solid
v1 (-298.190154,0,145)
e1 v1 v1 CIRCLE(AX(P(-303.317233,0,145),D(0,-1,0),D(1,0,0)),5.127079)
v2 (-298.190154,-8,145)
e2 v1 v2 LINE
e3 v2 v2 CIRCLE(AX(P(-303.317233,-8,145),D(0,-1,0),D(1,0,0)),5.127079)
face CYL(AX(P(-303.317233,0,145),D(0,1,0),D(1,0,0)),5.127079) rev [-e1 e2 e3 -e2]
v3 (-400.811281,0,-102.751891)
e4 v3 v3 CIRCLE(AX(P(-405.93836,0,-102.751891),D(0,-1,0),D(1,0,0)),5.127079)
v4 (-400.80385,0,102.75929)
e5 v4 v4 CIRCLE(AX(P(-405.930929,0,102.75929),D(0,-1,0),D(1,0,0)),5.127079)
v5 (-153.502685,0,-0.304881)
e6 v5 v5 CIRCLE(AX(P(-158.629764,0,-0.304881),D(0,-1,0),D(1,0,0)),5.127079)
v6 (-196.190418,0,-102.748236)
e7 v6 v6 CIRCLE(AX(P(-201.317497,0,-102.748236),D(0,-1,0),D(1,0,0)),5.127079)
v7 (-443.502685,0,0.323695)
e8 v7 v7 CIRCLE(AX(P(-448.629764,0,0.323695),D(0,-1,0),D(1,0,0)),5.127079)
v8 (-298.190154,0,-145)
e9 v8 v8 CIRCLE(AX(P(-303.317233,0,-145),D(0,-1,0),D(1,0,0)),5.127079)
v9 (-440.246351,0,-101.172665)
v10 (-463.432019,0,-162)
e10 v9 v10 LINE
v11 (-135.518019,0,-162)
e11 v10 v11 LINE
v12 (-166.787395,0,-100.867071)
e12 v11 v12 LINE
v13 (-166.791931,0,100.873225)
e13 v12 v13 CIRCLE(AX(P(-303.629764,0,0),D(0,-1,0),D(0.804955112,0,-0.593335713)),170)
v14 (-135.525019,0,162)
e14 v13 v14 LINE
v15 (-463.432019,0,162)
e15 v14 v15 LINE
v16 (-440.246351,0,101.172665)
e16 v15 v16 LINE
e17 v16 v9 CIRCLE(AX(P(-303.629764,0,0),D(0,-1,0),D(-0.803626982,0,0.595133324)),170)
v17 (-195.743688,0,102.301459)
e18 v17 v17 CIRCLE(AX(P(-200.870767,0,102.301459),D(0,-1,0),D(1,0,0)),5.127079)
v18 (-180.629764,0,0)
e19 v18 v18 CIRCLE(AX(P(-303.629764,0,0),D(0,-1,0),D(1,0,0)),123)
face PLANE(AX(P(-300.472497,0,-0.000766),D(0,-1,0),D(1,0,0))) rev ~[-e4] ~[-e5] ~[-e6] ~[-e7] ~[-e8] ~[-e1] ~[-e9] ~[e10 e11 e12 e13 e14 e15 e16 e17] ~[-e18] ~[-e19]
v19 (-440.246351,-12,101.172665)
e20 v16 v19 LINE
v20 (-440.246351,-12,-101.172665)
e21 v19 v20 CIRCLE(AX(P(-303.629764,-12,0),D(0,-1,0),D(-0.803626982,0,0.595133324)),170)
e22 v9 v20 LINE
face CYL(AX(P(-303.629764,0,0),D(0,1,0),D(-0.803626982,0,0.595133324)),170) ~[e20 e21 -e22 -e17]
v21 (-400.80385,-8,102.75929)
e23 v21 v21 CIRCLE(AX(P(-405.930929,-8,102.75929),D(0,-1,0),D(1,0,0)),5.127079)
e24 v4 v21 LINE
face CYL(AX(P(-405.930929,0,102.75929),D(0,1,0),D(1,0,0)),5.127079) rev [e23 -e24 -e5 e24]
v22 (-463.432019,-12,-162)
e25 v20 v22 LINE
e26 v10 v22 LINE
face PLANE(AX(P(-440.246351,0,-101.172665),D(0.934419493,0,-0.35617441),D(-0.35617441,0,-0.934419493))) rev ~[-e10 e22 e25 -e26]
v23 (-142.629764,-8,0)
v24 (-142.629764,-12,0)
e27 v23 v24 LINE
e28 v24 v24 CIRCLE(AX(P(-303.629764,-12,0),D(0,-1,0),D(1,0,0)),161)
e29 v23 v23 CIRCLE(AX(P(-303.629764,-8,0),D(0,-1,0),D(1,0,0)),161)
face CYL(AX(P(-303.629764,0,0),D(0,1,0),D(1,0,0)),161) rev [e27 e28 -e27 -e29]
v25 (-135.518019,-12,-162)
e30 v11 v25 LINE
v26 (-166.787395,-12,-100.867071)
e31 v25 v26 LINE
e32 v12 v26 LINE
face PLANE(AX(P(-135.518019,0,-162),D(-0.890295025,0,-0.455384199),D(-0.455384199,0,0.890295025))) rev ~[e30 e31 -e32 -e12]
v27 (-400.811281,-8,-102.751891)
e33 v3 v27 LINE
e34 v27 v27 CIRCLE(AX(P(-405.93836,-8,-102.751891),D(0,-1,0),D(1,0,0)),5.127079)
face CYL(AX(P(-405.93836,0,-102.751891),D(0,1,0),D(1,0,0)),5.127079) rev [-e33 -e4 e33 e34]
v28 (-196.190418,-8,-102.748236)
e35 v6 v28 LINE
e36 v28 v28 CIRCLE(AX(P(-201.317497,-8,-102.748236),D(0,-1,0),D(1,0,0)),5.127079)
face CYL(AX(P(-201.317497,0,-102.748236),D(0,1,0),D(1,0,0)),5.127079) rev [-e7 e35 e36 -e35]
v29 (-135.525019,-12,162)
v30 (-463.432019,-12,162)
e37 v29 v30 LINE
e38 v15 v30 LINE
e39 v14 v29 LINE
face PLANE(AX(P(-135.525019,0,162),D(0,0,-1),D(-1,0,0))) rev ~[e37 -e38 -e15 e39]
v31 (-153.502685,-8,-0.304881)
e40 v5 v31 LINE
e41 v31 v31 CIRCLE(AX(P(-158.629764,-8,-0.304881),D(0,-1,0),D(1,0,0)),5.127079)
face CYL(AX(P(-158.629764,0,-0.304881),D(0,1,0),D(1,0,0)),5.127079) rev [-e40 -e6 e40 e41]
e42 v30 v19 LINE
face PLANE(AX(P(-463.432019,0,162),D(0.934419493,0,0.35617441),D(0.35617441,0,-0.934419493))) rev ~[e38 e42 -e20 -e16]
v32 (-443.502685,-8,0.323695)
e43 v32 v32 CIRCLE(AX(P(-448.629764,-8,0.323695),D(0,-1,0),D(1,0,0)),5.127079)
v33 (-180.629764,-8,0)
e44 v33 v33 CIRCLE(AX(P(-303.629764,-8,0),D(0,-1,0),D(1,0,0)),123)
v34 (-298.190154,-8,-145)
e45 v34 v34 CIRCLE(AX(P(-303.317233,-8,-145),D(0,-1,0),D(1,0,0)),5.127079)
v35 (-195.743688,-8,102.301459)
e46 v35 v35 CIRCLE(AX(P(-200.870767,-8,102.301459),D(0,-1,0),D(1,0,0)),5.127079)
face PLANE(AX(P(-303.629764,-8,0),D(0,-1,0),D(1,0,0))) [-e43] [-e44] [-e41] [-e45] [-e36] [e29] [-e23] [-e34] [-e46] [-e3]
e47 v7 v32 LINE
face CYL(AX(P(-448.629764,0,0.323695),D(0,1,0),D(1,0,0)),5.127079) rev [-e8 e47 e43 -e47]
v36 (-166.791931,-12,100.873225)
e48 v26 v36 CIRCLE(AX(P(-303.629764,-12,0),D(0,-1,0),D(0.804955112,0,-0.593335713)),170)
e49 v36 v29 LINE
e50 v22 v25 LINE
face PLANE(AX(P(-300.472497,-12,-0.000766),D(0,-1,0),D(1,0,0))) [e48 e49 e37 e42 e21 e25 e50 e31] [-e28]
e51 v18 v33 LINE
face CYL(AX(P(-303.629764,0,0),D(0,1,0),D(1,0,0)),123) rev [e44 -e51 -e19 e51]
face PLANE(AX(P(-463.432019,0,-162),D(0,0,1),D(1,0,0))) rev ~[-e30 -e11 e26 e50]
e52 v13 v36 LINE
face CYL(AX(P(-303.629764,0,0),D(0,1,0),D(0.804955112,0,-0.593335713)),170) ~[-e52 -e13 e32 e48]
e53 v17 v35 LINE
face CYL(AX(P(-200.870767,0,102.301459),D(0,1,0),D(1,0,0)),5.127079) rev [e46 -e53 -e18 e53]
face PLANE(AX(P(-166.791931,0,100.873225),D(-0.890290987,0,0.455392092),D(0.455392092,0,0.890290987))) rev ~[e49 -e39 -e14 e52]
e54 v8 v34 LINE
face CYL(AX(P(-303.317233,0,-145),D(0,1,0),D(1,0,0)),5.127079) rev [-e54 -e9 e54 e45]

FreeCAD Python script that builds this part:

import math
import FreeCAD as App
import Part
import Sketcher
Q = App.Units.Quantity

doc = App.newDocument("Part")
body = doc.addObject("PartDesign::Body", "Body")

# Sketch on XZ plane
sketch1 = body.newObject("Sketcher::SketchObject", "Sketch")
sketch1.AttachmentSupport = (doc.getObject("XZ_Plane"), [""])
sketch1.MapMode = "FlatFace"
sketch1.addGeometry(Part.Circle(App.Vector(-303.629764, 0, 0), App.Vector(0, 0, 1), 161), False)
sketch1.addGeometry(Part.Circle(App.Vector(-405.93836, -102.751891, 0), App.Vector(0, 0, 1), 5.127079), False)
sketch1.addGeometry(Part.Circle(App.Vector(-303.317233, -145, 0), App.Vector(0, 0, 1), 5.127079), False)
sketch1.addGeometry(Part.Circle(App.Vector(-201.317497, -102.748236, 0), App.Vector(0, 0, 1), 5.127079), False)
sketch1.addGeometry(Part.Circle(App.Vector(-158.629764, -0.304881, 0), App.Vector(0, 0, 1), 5.127079), False)
sketch1.addGeometry(Part.Circle(App.Vector(-448.629764, 0.323695, 0), App.Vector(0, 0, 1), 5.127079), False)
sketch1.addGeometry(Part.Circle(App.Vector(-405.930929, 102.75929, 0), App.Vector(0, 0, 1), 5.127079), False)
sketch1.addGeometry(Part.Circle(App.Vector(-303.629764, 0, 0), App.Vector(0, 0, 1), 123), False)
sketch1.addGeometry(Part.Circle(App.Vector(-303.317233, 145, 0), App.Vector(0, 0, 1), 5.127079), False)
sketch1.addGeometry(Part.Circle(App.Vector(-200.870767, 102.301459, 0), App.Vector(0, 0, 1), 5.127079), False)
sketch1.addConstraint(Sketcher.Constraint("Coincident", 7, 3, 0, 3))
sketch1.addConstraint(Sketcher.Constraint("Equal", 1, 2))
sketch1.addConstraint(Sketcher.Constraint("Equal", 2, 3))
sketch1.addConstraint(Sketcher.Constraint("Equal", 3, 4))
sketch1.addConstraint(Sketcher.Constraint("Equal", 4, 5))
sketch1.addConstraint(Sketcher.Constraint("Equal", 5, 6))
sketch1.addConstraint(Sketcher.Constraint("Equal", 6, 8))
sketch1.addConstraint(Sketcher.Constraint("Equal", 8, 9))
sketch1.addConstraint(Sketcher.Constraint("Symmetric", 2, 3, 8, 3, -1))
sketch1.addConstraint(Sketcher.Constraint("PointOnObject", 0, 3, -1))
sketch1.addConstraint(Sketcher.Constraint("Diameter", 0, Q("322 mm")))
sketch1.addConstraint(Sketcher.Constraint("Diameter", 7, Q("246 mm")))
sketch1.addConstraint(Sketcher.Constraint("DistanceY", 2, 3, -1, 1, Q("145 mm")))
sketch1.addConstraint(Sketcher.Constraint("DistanceX", 0, 3, 4, 3, Q("145 mm")))
sketch1.addConstraint(Sketcher.Constraint("DistanceX", 5, 3, 0, 3, Q("145 mm")))
sketch1.addConstraint(Sketcher.Constraint("Diameter", 1, Q("10.254158 mm")))
sketch1.addConstraint(Sketcher.Constraint("DistanceX", 1, 3, -1, 1, Q("405.93836 mm")))
sketch1.addConstraint(Sketcher.Constraint("DistanceY", 1, 3, -1, 1, Q("102.751891 mm")))
sketch1.addConstraint(Sketcher.Constraint("DistanceY", 4, 3, -1, 1, Q("0.304881 mm")))
sketch1.addConstraint(Sketcher.Constraint("DistanceX", 6, 3, -1, 1, Q("405.930929 mm")))
sketch1.addConstraint(Sketcher.Constraint("DistanceY", -1, 1, 6, 3, Q("102.75929 mm")))
sketch1.addConstraint(Sketcher.Constraint("DistanceY", -1, 1, 9, 3, Q("102.301459 mm")))
sketch1.addConstraint(Sketcher.Constraint("DistanceX", 0, 3, 2, 3, Q("0.312531 mm")))
sketch1.addConstraint(Sketcher.Constraint("DistanceY", 3, 3, 5, 3, Q("103.071931 mm")))
sketch1.addConstraint(Sketcher.Constraint("DistanceX", 3, 3, 9, 3, Q("0.44673 mm")))
sketch1.addConstraint(Sketcher.Constraint("DistanceX", 0, 3, -1, 1, Q("303.629764 mm")))
sketch1.addConstraint(Sketcher.Constraint("DistanceX", 3, 3, -1, 1, Q("201.317497 mm")))
sketch1.addConstraint(Sketcher.Constraint("DistanceY", 3, 3, -1, 1, Q("102.748236 mm")))
pad1 = body.newObject("PartDesign::Pad", "Pad")
pad1.Profile = sketch1
pad1.Length = 8

# Sketch on XZ plane
sketch2 = body.newObject("Sketcher::SketchObject", "Sketch001")
sketch2.AttachmentSupport = (doc.getObject("XZ_Plane"), [""])
sketch2.MapMode = "FlatFace"
sketch2.addGeometry(Part.LineSegment(App.Vector(-135.525019, 162, 0), App.Vector(-463.432019, 162, 0)), False)
sketch2.addGeometry(Part.LineSegment(App.Vector(-463.432019, 162, 0), App.Vector(-440.246351, 101.172665, 0)), False)
sketch2.addGeometry(Part.ArcOfCircle(Part.Circle(App.Vector(-303.629764, 0, 0), App.Vector(0, 0, 1), 170), math.radians(143.477863), math.radians(216.522137)), False)
sketch2.addGeometry(Part.LineSegment(App.Vector(-440.246351, -101.172665, 0), App.Vector(-463.432019, -162, 0)), False)
sketch2.addGeometry(Part.LineSegment(App.Vector(-463.432019, -162, 0), App.Vector(-135.518019, -162, 0)), False)
sketch2.addGeometry(Part.LineSegment(App.Vector(-135.518019, -162, 0), App.Vector(-166.787395, -100.867071, 0)), False)
sketch2.addGeometry(Part.ArcOfCircle(Part.Circle(App.Vector(-303.629764, 0, 0), App.Vector(0, 0, 1), 170), math.radians(-36.39408), math.radians(36.396656)), False)
sketch2.addGeometry(Part.LineSegment(App.Vector(-166.791931, 100.873225, 0), App.Vector(-135.525019, 162, 0)), False)
sketch2.addGeometry(Part.Circle(App.Vector(-303.629764, 0, 0), App.Vector(0, 0, 1), 161), False)
sketch2.addConstraint(Sketcher.Constraint("Coincident", 0, 2, 1, 1))
sketch2.addConstraint(Sketcher.Constraint("Coincident", 1, 2, 2, 1))
sketch2.addConstraint(Sketcher.Constraint("Coincident", 2, 2, 3, 1))
sketch2.addConstraint(Sketcher.Constraint("Coincident", 3, 2, 4, 1))
sketch2.addConstraint(Sketcher.Constraint("Coincident", 4, 2, 5, 1))
sketch2.addConstraint(Sketcher.Constraint("Coincident", 5, 2, 6, 1))
sketch2.addConstraint(Sketcher.Constraint("Coincident", 6, 2, 7, 1))
sketch2.addConstraint(Sketcher.Constraint("Coincident", 7, 2, 0, 1))
sketch2.addConstraint(Sketcher.Constraint("Horizontal", 0))
sketch2.addConstraint(Sketcher.Constraint("Horizontal", 4))
sketch2.addConstraint(Sketcher.Constraint("Coincident", 6, 3, 2, 3))
sketch2.addConstraint(Sketcher.Constraint("Coincident", 8, 3, 2, 3))
sketch2.addConstraint(Sketcher.Constraint("Equal", 2, 6))
sketch2.addConstraint(Sketcher.Constraint("Symmetric", 1, 2, 2, 2, -1))
sketch2.addConstraint(Sketcher.Constraint("Symmetric", 0, 2, 3, 2, -1))
sketch2.addConstraint(Sketcher.Constraint("Diameter", 8, Q("322 mm")))
sketch2.addConstraint(Sketcher.Constraint("Radius", 2, Q("170 mm")))
sketch2.addConstraint(Sketcher.Constraint("DistanceY", -1, 1, 0, 2, Q("162 mm")))
sketch2.addConstraint(Sketcher.Constraint("DistanceX", 0, 2, 0, 1, Q("327.907 mm")))
sketch2.addConstraint(Sketcher.Constraint("DistanceX", 4, 1, 4, 2, Q("327.914 mm")))
sketch2.addConstraint(Sketcher.Constraint("Distance", 1, Q("65.096389 mm")))
sketch2.addConstraint(Sketcher.Constraint("Distance", 7, Q("68.659321 mm")))
sketch2.addConstraint(Sketcher.Constraint("DistanceX", 0, 2, -1, 1, Q("463.432019 mm")))
sketch2.addConstraint(Sketcher.Constraint("DistanceX", 1, 2, -1, 1, Q("440.246351 mm")))
sketch2.addConstraint(Sketcher.Constraint("DistanceY", 5, 2, -1, 1, Q("100.867071 mm")))
pad2 = body.newObject("PartDesign::Pad", "Pad001")
pad2.Profile = sketch2
pad2.Length = 12

doc.recompute()
